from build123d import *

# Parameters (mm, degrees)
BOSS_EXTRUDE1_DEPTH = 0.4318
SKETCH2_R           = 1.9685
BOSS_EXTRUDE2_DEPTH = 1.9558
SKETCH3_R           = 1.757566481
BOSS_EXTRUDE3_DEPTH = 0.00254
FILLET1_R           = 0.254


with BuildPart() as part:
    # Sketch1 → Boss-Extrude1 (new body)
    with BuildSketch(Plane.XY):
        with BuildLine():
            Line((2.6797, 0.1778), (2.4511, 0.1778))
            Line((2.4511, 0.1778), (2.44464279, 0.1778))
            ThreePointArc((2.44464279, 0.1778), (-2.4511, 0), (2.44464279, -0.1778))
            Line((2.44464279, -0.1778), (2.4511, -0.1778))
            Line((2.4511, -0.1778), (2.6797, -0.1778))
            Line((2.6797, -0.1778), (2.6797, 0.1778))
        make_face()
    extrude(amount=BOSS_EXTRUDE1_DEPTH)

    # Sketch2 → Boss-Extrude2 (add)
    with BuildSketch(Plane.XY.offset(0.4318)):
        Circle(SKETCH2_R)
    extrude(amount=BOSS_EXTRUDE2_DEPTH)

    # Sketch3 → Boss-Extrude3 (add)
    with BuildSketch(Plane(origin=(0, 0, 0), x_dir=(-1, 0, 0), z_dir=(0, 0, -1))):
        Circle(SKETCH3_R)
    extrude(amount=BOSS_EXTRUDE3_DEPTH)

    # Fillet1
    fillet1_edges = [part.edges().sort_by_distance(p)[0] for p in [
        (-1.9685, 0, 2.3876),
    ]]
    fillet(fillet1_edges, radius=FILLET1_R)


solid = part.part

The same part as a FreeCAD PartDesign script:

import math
import FreeCAD as App
import Part
import Sketcher
Q = App.Units.Quantity


def edges_at(feature, points):
    """Names of the edges that pass closest to the given points."""
    edges = feature.Shape.Edges
    near = lambda p: min(range(len(edges)), key=lambda i: edges[i].distToShape(Part.Vertex(*p))[0])
    return sorted({f"Edge{near(p) + 1}" for p in points})

doc = App.newDocument("Part")
params = doc.addObject("Spreadsheet::Sheet", "Params")
for row, (alias, value) in enumerate([
    ("sketch1_height", "0.014 in"),
    ("pad1_length", "0.017 in"),
    ("sketch2_diameter", "0.155 in"),
    ("pad2_length", "0.077 in"),
    ("pad3_length", "0.0001 in"),
    ("fillet_radius", "0.01 in"),
], start=1):
    params.set(f"A{row}", alias)
    params.set(f"B{row}", "=" + value)
    params.setAlias(f"B{row}", alias)

body = doc.addObject("PartDesign::Body", "Body")

# Sketch on XY plane
sketch1 = doc.addObject("Sketcher::SketchObject", "Sketch")
body.addObject(sketch1)
sketch1.AttachmentSupport = (doc.XY_Plane, [""])
sketch1.MapMode = "FlatFace"
sketch1.addGeometry([
    Part.LineSegment(App.Vector(2.6797, 0.1778, 0), App.Vector(2.444643, 0.1778, 0)),
    Part.ArcOfCircle(Part.Circle(App.Vector(0, 0, 0), App.Vector(0, 0, 1), 2.4511), math.radians(4.159824), math.radians(355.840176)),
    Part.LineSegment(App.Vector(2.444643, -0.1778, 0), App.Vector(2.6797, -0.1778, 0)),
    Part.LineSegment(App.Vector(2.6797, -0.1778, 0), App.Vector(2.6797, 0.1778, 0)),
], False)
sketch1.addConstraint([
    Sketcher.Constraint("Coincident", 0, 2, 1, 1),
    Sketcher.Constraint("Coincident", 1, 2, 2, 1),
    Sketcher.Constraint("Coincident", 2, 2, 3, 1),
    Sketcher.Constraint("Coincident", 3, 2, 0, 1),
    Sketcher.Constraint("Horizontal", 0),
    Sketcher.Constraint("Horizontal", 2),
    Sketcher.Constraint("Vertical", 3),
    Sketcher.Constraint("Coincident", 1, 3, -1, 1),
    Sketcher.Constraint("Vertical", 0, 2, 1, 2),
    Sketcher.Constraint("Radius", 1, Q("0.0965 in")),
    Sketcher.Constraint("DistanceY", 3, 1, 3, 2, Q("0.014 in")),
    Sketcher.Constraint("DistanceX", -1, 1, 2, 2, Q("0.1055 in")),
])
sketch1.setExpression("Constraints[10]", "Params.sketch1_height")
pad1 = doc.addObject("PartDesign::Pad", "Pad")
body.addObject(pad1)
pad1.Profile = sketch1
pad1.setExpression("Length", "Params.pad1_length")

# Sketch on XY plane
sketch2 = doc.addObject("Sketcher::SketchObject", "Sketch001")
body.addObject(sketch2)
sketch2.AttachmentSupport = (doc.XY_Plane, [""])
sketch2.MapMode = "FlatFace"
sketch2.AttachmentOffset = App.Placement(App.Vector(0, 0, 0.017 * 25.4), App.Rotation())
sketch2.addGeometry(Part.Circle(App.Vector(0, 0, 0), App.Vector(0, 0, 1), 1.9685), False)
sketch2.addConstraint([
    Sketcher.Constraint("Coincident", 0, 3, -1, 1),
    Sketcher.Constraint("Diameter", 0, Q("0.155 in")),
])
sketch2.setExpression("Constraints[1]", "Params.sketch2_diameter")
pad2 = doc.addObject("PartDesign::Pad", "Pad001")
body.addObject(pad2)
pad2.Profile = sketch2
pad2.setExpression("Length", "Params.pad2_length")

# Sketch on XY plane
sketch3 = doc.addObject("Sketcher::SketchObject", "Sketch002")
body.addObject(sketch3)
sketch3.AttachmentSupport = (doc.XY_Plane, [""])
sketch3.MapMode = "FlatFace"
sketch3.addGeometry(Part.Circle(App.Vector(0, 0, 0), App.Vector(0, 0, 1), 1.757566), False)
sketch3.addConstraint([
    Sketcher.Constraint("Coincident", 0, 3, -1, 1),
    Sketcher.Constraint("Diameter", 0, Q("3.515133 mm")),
])
pad3 = doc.addObject("PartDesign::Pad", "Pad002")
body.addObject(pad3)
pad3.Profile = sketch3
pad3.setExpression("Length", "Params.pad3_length")
pad3.Reversed = True
doc.recompute()

fillet = doc.addObject("PartDesign::Fillet", "Fillet")
body.addObject(fillet)
fillet.Base = (pad3, edges_at(pad3, [(-1.968, 0, 2.388)]))
fillet.setExpression("Radius", "Params.fillet_radius")

doc.recompute()
